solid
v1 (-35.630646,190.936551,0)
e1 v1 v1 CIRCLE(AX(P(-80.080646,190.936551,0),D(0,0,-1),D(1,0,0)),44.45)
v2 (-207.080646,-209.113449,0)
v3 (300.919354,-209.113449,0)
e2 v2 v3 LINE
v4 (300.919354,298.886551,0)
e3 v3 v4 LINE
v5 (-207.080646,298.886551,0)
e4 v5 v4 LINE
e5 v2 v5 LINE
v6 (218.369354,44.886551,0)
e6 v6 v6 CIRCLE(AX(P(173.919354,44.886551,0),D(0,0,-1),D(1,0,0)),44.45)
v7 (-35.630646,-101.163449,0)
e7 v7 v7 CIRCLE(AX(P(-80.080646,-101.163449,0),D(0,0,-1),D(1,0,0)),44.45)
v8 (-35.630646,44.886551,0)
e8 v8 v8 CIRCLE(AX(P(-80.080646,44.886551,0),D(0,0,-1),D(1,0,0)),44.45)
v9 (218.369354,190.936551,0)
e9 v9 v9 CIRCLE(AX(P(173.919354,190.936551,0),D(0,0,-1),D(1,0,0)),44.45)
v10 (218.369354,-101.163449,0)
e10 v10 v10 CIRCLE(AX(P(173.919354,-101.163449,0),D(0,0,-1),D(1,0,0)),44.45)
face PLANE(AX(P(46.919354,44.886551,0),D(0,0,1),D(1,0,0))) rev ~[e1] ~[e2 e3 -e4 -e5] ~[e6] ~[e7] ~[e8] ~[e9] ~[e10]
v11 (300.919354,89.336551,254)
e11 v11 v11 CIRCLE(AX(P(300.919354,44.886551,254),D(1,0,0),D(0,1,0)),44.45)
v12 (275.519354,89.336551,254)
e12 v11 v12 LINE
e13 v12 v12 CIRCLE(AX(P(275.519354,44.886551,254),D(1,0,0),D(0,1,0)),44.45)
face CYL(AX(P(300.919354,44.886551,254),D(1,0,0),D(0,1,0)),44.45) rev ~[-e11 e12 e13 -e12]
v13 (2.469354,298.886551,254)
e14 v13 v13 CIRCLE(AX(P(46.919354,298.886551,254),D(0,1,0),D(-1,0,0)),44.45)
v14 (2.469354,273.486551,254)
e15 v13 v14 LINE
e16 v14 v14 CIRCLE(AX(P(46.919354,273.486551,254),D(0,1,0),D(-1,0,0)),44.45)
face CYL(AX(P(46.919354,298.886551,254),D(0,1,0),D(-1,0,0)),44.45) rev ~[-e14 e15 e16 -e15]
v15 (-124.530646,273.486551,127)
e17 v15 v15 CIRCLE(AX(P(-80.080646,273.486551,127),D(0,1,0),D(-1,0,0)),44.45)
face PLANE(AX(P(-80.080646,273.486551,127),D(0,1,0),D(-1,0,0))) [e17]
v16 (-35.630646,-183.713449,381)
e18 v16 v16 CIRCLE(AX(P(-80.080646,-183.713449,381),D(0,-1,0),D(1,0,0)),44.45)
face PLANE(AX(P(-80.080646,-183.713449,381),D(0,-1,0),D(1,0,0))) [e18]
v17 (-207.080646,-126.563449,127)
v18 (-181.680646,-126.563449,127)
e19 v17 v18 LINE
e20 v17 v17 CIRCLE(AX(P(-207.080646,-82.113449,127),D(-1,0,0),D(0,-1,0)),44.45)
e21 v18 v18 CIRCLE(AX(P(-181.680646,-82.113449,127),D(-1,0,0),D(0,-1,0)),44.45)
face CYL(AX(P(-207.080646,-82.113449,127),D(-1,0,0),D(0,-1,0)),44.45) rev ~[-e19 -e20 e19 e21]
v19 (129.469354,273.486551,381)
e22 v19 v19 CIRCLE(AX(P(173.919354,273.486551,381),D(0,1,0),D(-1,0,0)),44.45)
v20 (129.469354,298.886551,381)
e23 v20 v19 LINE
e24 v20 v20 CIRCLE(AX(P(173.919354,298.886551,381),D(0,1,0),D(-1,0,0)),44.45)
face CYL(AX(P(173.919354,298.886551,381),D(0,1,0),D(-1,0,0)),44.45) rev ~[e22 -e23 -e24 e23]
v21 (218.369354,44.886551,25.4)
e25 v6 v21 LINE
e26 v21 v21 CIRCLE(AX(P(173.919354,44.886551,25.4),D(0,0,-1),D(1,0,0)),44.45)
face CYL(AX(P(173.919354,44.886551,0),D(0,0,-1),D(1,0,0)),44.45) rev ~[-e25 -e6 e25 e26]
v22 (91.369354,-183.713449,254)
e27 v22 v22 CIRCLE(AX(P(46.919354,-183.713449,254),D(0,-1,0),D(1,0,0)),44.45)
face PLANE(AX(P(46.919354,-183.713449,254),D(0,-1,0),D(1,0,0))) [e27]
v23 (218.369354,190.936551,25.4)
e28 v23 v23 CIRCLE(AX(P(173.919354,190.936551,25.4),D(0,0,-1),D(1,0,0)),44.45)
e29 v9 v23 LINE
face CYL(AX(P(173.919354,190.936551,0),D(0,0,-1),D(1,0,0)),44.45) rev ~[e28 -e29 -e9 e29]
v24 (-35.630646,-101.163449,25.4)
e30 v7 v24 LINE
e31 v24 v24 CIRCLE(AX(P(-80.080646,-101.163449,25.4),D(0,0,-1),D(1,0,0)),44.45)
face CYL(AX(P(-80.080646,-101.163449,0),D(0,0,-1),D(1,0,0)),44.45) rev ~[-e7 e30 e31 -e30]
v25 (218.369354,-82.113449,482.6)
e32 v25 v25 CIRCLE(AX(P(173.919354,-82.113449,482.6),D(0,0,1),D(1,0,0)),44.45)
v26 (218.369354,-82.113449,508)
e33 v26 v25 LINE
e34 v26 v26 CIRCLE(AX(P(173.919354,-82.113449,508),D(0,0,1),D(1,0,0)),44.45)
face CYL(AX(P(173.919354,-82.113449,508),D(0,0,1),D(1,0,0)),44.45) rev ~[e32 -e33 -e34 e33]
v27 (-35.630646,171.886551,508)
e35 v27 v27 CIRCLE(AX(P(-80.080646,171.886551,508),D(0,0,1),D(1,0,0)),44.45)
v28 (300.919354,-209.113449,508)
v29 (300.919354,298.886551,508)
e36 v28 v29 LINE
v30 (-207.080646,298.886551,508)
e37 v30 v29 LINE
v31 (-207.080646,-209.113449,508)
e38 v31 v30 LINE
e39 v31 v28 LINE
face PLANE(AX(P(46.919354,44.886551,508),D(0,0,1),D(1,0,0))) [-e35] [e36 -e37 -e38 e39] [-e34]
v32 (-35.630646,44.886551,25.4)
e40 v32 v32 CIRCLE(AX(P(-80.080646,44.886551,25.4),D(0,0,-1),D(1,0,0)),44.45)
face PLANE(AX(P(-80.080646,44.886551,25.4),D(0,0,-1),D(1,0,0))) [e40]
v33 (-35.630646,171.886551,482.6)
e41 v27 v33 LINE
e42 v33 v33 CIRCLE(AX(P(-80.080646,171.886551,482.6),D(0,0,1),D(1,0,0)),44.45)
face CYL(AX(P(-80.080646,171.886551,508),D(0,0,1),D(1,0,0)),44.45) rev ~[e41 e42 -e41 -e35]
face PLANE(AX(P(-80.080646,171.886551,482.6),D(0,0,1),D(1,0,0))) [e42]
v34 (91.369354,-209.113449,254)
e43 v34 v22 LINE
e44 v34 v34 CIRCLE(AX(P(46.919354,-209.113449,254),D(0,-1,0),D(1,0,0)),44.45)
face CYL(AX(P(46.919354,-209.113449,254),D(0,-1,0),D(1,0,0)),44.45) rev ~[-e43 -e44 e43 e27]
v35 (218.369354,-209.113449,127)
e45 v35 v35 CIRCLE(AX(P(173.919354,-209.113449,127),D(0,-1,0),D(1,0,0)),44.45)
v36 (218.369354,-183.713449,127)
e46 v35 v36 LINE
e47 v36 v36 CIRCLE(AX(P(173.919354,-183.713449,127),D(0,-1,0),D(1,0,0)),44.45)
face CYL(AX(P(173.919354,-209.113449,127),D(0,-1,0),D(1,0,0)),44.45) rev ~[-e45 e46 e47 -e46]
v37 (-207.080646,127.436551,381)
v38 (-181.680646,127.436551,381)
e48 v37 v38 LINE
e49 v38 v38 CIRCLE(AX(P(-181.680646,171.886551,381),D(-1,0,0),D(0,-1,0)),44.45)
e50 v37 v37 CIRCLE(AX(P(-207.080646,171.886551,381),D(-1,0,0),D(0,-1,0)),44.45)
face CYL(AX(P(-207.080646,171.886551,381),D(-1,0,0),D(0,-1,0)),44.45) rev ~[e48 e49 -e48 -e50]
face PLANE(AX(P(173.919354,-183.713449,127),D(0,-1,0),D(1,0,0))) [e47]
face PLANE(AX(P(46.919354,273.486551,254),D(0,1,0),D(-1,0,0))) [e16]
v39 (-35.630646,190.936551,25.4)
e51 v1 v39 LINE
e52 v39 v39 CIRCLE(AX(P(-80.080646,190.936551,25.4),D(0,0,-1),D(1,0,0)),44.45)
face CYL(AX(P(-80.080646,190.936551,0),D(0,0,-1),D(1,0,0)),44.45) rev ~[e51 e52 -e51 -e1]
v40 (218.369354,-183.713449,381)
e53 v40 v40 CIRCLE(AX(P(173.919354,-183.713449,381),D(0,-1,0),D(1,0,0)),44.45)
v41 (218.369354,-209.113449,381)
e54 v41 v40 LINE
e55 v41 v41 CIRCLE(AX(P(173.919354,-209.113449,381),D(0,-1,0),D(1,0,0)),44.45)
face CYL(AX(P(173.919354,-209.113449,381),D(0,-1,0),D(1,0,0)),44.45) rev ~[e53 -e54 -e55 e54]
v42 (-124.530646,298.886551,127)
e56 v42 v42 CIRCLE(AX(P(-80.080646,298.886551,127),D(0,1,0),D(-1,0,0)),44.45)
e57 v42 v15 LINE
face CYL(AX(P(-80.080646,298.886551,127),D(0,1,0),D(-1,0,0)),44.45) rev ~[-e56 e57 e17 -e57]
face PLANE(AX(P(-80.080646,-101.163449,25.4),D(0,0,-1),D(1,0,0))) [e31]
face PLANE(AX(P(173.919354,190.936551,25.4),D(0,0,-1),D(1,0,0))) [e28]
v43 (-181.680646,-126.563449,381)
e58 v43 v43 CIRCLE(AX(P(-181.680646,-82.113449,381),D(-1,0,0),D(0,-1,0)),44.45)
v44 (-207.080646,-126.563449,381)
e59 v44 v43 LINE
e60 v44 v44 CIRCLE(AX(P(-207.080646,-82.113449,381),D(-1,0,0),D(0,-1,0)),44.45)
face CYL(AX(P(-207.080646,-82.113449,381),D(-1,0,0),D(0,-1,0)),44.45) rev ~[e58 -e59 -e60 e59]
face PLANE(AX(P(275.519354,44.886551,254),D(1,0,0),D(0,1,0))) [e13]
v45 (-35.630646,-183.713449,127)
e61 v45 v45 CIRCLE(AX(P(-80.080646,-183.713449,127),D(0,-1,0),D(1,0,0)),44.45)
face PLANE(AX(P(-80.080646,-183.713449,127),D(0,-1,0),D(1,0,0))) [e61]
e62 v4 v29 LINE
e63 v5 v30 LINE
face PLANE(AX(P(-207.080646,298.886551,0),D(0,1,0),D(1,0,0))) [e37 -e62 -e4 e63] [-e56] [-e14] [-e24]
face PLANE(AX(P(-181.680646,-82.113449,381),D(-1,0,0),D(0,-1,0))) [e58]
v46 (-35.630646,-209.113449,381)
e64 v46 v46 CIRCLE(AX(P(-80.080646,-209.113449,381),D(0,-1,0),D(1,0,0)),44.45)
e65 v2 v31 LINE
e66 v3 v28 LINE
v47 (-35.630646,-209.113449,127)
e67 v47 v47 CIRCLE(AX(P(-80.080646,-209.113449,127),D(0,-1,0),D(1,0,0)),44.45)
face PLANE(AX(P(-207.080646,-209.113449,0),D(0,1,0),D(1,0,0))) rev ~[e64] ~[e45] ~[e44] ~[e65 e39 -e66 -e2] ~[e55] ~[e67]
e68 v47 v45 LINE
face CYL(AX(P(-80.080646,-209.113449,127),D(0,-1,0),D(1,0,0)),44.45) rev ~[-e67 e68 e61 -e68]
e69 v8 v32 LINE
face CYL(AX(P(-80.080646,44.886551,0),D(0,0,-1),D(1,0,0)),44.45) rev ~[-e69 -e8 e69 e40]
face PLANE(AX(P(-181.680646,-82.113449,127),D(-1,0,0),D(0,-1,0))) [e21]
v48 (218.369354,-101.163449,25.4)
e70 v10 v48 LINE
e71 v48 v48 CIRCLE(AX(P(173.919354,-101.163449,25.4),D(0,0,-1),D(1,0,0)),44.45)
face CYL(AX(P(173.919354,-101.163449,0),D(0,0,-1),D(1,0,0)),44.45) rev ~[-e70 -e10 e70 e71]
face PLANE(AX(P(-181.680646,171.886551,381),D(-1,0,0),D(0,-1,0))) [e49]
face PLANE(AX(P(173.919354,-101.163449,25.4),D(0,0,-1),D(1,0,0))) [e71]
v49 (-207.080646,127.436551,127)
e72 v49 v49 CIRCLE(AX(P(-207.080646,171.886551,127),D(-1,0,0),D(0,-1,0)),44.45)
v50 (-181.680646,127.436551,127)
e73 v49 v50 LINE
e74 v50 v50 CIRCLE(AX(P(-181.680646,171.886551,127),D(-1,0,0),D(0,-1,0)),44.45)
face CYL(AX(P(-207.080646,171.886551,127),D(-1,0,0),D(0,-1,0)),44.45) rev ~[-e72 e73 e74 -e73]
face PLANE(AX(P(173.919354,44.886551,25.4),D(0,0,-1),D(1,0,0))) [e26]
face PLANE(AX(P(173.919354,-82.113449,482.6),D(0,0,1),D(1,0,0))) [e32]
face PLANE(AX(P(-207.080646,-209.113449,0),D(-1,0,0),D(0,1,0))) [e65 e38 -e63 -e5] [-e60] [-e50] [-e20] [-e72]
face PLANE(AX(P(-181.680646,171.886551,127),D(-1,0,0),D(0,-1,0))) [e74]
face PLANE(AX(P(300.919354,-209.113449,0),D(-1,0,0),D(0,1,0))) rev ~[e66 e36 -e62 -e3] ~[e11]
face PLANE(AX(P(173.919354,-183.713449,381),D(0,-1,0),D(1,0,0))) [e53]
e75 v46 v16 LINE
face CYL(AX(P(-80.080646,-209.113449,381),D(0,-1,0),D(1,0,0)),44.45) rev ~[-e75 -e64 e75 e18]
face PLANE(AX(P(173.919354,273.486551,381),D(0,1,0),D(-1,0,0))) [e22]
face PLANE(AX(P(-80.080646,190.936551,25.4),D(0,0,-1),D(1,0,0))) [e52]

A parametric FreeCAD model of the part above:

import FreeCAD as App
import Part
import Sketcher
from FreeCAD import Vector
Q = App.Units.Quantity


def add_polygon(sketch, points):
    """Adds a closed chain of lines whose ends are joined by coincident constraints."""
    first, n = sketch.GeometryCount, len(points)
    for a, b in zip(points, points[1:] + points[:1]):
        sketch.addGeometry(Part.LineSegment(App.Vector(*a, 0), App.Vector(*b, 0)), False)
    for i in range(n):
        sketch.addConstraint(Sketcher.Constraint("Coincident", first + i, 2, first + (i + 1) % n, 1))

doc = App.newDocument("Part")
body = doc.addObject("PartDesign::Body", "Body")

# Sketch on XY plane
sketch1 = body.newObject("Sketcher::SketchObject", "Sketch")
sketch1.AttachmentSupport = (doc.getObject("XY_Plane"), [""])
sketch1.MapMode = "FlatFace"
add_polygon(sketch1, [(-207, 299), (-207, -209), (301, -209), (301, 299)])  # lines 0-3
sketch1.addConstraint([
    Sketcher.Constraint("Vertical", 0),
    Sketcher.Constraint("Horizontal", 1),
    Sketcher.Constraint("Vertical", 2),
    Sketcher.Constraint("Horizontal", 3),
    Sketcher.Constraint("Equal", 3, 0),
    Sketcher.Constraint("DistanceX", 1, 1, 1, 2, Q("20 in")),
    Sketcher.Constraint("DistanceY", 0, 2, -1, 1, 209.113449),
    Sketcher.Constraint("DistanceX", 0, 2, -1, 1, 207.080646),
])
pad1 = body.newObject("PartDesign::Pad", "Pad")
pad1.Profile = sketch1
pad1.Length = Q("20 in")

# Sketch on YZ plane
sketch2 = body.newObject("Sketcher::SketchObject", "Sketch001")
sketch2.AttachmentSupport = (doc.getObject("YZ_Plane"), [""])
sketch2.MapMode = "FlatFace"
sketch2.AttachmentOffset = App.Placement(Vector(0, 0, -207.080646), App.Rotation())
sketch2.addGeometry([
    Part.Circle(Vector(172, 127, 0), Vector(0, 0, 1), 44),
    Part.Circle(Vector(172, 381, 0), Vector(0, 0, 1), 44),
    Part.Circle(Vector(-82, 381, 0), Vector(0, 0, 1), 44),
    Part.Circle(Vector(-82, 127, 0), Vector(0, 0, 1), 44),
], False)
sketch2.addConstraint([
    Sketcher.Constraint("Equal", 0, 1),
    Sketcher.Constraint("Equal", 1, 2),
    Sketcher.Constraint("Equal", 2, 3),
    Sketcher.Constraint("Horizontal", 1, 3, 2, 3),
    Sketcher.Constraint("Horizontal", 0, 3, 3, 3),
    Sketcher.Constraint("Vertical", 0, 3, 1, 3),
    Sketcher.Constraint("Vertical", 2, 3, 3, 3),
    Sketcher.Constraint("Diameter", 0, Q("3.5 in")),
    Sketcher.Constraint("DistanceY", -1, 1, 0, 3, Q("5 in")),
    Sketcher.Constraint("DistanceY", -1, 1, 1, 3, Q("15 in")),
    Sketcher.Constraint("DistanceX", 2, 3, 1, 3, Q("10 in")),
    Sketcher.Constraint("DistanceX", -1, 1, 0, 3, 171.886551),
])
pocket1 = body.newObject("PartDesign::Pocket", "Pocket")
pocket1.Profile = sketch2
pocket1.Length = Q("1 in")
pocket1.Reversed = True

# Sketch on XY plane
sketch3 = body.newObject("Sketcher::SketchObject", "Sketch002")
sketch3.AttachmentSupport = (doc.getObject("XY_Plane"), [""])
sketch3.MapMode = "FlatFace"
sketch3.addGeometry([
    Part.Circle(Vector(-80, -101, 0), Vector(0, 0, 1), 44),  # 0
    Part.Circle(Vector(-80, 191, 0), Vector(0, 0, 1), 44),  # 1
    Part.Circle(Vector(174, -101, 0), Vector(0, 0, 1), 44),  # 2
    Part.Circle(Vector(-80, 45, 0), Vector(0, 0, 1), 44),  # 3
    Part.Circle(Vector(174, 45, 0), Vector(0, 0, 1), 44),  # 4
    Part.Circle(Vector(174, 191, 0), Vector(0, 0, 1), 44),  # 5
], False)
sketch3.addConstraint([
    Sketcher.Constraint("Equal", 0, 1),
    Sketcher.Constraint("Equal", 1, 2),
    Sketcher.Constraint("Equal", 2, 3),
    Sketcher.Constraint("Equal", 3, 4),
    Sketcher.Constraint("Equal", 4, 5),
    Sketcher.Constraint("Horizontal", 0, 3, 2, 3),
    Sketcher.Constraint("Horizontal", 3, 3, 4, 3),
    Sketcher.Constraint("Horizontal", 1, 3, 5, 3),
    Sketcher.Constraint("Vertical", 0, 3, 1, 3),
    Sketcher.Constraint("Vertical", 1, 3, 3, 3),
    Sketcher.Constraint("Vertical", 2, 3, 4, 3),
    Sketcher.Constraint("Vertical", 4, 3, 5, 3),
    Sketcher.Constraint("Diameter", 0, Q("3.5 in")),
    Sketcher.Constraint("DistanceX", 0, 3, 2, 3, Q("10 in")),
    Sketcher.Constraint("DistanceY", 0, 3, 1, 3, Q("11.5 in")),
    Sketcher.Constraint("DistanceY", 0, 3, 3, 3, Q("5.75 in")),
    Sketcher.Constraint("DistanceY", 0, 3, -1, 1, 101.163449),
    Sketcher.Constraint("DistanceX", 0, 3, -1, 1, 80.080646),
])
pocket2 = body.newObject("PartDesign::Pocket", "Pocket001")
pocket2.Profile = sketch3
pocket2.Length = Q("1 in")
pocket2.Reversed = True

# Sketch on XZ plane
sketch4 = body.newObject("Sketcher::SketchObject", "Sketch003")
sketch4.AttachmentSupport = (doc.getObject("XZ_Plane"), [""])
sketch4.MapMode = "FlatFace"
sketch4.AttachmentOffset = App.Placement(Vector(0, 0, -298.886551), App.Rotation())
sketch4.addGeometry([
    Part.Circle(Vector(-80, 127, 0), Vector(0, 0, 1), 44),
    Part.Circle(Vector(174, 381, 0), Vector(0, 0, 1), 44),
    Part.Circle(Vector(47, 254, 0), Vector(0, 0, 1), 44),
], False)
sketch4.addConstraint([
    Sketcher.Constraint("Equal", 0, 1),
    Sketcher.Constraint("Equal", 1, 2),
    Sketcher.Constraint("Diameter", 0, Q("3.5 in")),
    Sketcher.Constraint("DistanceY", -1, 1, 0, 3, Q("5 in")),
    Sketcher.Constraint("DistanceY", -1, 1, 1, 3, Q("15 in")),
    Sketcher.Constraint("DistanceY", -1, 1, 2, 3, Q("10 in")),
    Sketcher.Constraint("DistanceX", 0, 3, 1, 3, Q("10 in")),
    Sketcher.Constraint("DistanceX", 0, 3, 2, 3, Q("5 in")),
    Sketcher.Constraint("DistanceX", 0, 3, -1, 1, 80.080646),
])
pocket3 = body.newObject("PartDesign::Pocket", "Pocket002")
pocket3.Profile = sketch4
pocket3.Length = Q("1 in")
pocket3.Reversed = True

# Sketch on XZ plane
sketch5 = body.newObject("Sketcher::SketchObject", "Sketch004")
sketch5.AttachmentSupport = (doc.getObject("XZ_Plane"), [""])
sketch5.MapMode = "FlatFace"
sketch5.AttachmentOffset = App.Placement(Vector(0, 0, 209.113449), App.Rotation())
sketch5.addGeometry([
    Part.Circle(Vector(-80, 127, 0), Vector(0, 0, 1), 44),  # 0
    Part.Circle(Vector(-80, 381, 0), Vector(0, 0, 1), 44),  # 1
    Part.Circle(Vector(47, 254, 0), Vector(0, 0, 1), 44),  # 2
    Part.Circle(Vector(174, 127, 0), Vector(0, 0, 1), 44),  # 3
    Part.Circle(Vector(174, 381, 0), Vector(0, 0, 1), 44),  # 4
], False)
sketch5.addConstraint([
    Sketcher.Constraint("Equal", 0, 1),
    Sketcher.Constraint("Equal", 1, 2),
    Sketcher.Constraint("Equal", 2, 3),
    Sketcher.Constraint("Equal", 3, 4),
    Sketcher.Constraint("Horizontal", 0, 3, 3, 3),
    Sketcher.Constraint("Horizontal", 1, 3, 4, 3),
    Sketcher.Constraint("Vertical", 0, 3, 1, 3),
    Sketcher.Constraint("Vertical", 3, 3, 4, 3),
    Sketcher.Constraint("Diameter", 0, Q("3.5 in")),
    Sketcher.Constraint("DistanceY", -1, 1, 0, 3, Q("5 in")),
    Sketcher.Constraint("DistanceY", -1, 1, 1, 3, Q("15 in")),
    Sketcher.Constraint("DistanceY", -1, 1, 2, 3, Q("10 in")),
    Sketcher.Constraint("DistanceX", 0, 3, 2, 3, Q("5 in")),
    Sketcher.Constraint("DistanceX", 2, 3, 3, 3, Q("5 in")),
    Sketcher.Constraint("DistanceX", 0, 3, -1, 1, 80.080646),
])
pocket4 = body.newObject("PartDesign::Pocket", "Pocket003")
pocket4.Profile = sketch5
pocket4.Length = Q("1 in")

# Sketch on YZ plane
sketch6 = body.newObject("Sketcher::SketchObject", "Sketch005")
sketch6.AttachmentSupport = (doc.getObject("YZ_Plane"), [""])
sketch6.MapMode = "FlatFace"
sketch6.AttachmentOffset = App.Placement(Vector(0, 0, 300.919354), App.Rotation())
sketch6.addGeometry(Part.Circle(Vector(45, 254, 0), Vector(0, 0, 1), 44), False)
sketch6.addConstraint([
    Sketcher.Constraint("Diameter", 0, Q("3.5 in")),
    Sketcher.Constraint("DistanceY", -1, 1, 0, 3, Q("10 in")),
    Sketcher.Constraint("DistanceX", -1, 1, 0, 3, 44.886551),
])
pocket5 = body.newObject("PartDesign::Pocket", "Pocket004")
pocket5.Profile = sketch6
pocket5.Length = Q("1 in")

# Sketch on XY plane
sketch7 = body.newObject("Sketcher::SketchObject", "Sketch006")
sketch7.AttachmentSupport = (doc.getObject("XY_Plane"), [""])
sketch7.MapMode = "FlatFace"
sketch7.AttachmentOffset = App.Placement(Vector(0, 0, 20 * 25.4), App.Rotation())
sketch7.addGeometry([
    Part.Circle(Vector(174, -82, 0), Vector(0, 0, 1), 44),
    Part.Circle(Vector(-80, 172, 0), Vector(0, 0, 1), 44),
], False)
sketch7.addConstraint([
    Sketcher.Constraint("Equal", 0, 1),
    Sketcher.Constraint("Diameter", 0, Q("3.5 in")),
    Sketcher.Constraint("DistanceX", 1, 3, 0, 3, Q("10 in")),
    Sketcher.Constraint("DistanceY", 0, 3, 1, 3, Q("10 in")),
    Sketcher.Constraint("DistanceY", 0, 3, -1, 1, 82.113449),
    Sketcher.Constraint("DistanceX", -1, 1, 0, 3, 173.919354),
])
pocket6 = body.newObject("PartDesign::Pocket", "Pocket005")
pocket6.Profile = sketch7
pocket6.Length = Q("1 in")

doc.recompute()
